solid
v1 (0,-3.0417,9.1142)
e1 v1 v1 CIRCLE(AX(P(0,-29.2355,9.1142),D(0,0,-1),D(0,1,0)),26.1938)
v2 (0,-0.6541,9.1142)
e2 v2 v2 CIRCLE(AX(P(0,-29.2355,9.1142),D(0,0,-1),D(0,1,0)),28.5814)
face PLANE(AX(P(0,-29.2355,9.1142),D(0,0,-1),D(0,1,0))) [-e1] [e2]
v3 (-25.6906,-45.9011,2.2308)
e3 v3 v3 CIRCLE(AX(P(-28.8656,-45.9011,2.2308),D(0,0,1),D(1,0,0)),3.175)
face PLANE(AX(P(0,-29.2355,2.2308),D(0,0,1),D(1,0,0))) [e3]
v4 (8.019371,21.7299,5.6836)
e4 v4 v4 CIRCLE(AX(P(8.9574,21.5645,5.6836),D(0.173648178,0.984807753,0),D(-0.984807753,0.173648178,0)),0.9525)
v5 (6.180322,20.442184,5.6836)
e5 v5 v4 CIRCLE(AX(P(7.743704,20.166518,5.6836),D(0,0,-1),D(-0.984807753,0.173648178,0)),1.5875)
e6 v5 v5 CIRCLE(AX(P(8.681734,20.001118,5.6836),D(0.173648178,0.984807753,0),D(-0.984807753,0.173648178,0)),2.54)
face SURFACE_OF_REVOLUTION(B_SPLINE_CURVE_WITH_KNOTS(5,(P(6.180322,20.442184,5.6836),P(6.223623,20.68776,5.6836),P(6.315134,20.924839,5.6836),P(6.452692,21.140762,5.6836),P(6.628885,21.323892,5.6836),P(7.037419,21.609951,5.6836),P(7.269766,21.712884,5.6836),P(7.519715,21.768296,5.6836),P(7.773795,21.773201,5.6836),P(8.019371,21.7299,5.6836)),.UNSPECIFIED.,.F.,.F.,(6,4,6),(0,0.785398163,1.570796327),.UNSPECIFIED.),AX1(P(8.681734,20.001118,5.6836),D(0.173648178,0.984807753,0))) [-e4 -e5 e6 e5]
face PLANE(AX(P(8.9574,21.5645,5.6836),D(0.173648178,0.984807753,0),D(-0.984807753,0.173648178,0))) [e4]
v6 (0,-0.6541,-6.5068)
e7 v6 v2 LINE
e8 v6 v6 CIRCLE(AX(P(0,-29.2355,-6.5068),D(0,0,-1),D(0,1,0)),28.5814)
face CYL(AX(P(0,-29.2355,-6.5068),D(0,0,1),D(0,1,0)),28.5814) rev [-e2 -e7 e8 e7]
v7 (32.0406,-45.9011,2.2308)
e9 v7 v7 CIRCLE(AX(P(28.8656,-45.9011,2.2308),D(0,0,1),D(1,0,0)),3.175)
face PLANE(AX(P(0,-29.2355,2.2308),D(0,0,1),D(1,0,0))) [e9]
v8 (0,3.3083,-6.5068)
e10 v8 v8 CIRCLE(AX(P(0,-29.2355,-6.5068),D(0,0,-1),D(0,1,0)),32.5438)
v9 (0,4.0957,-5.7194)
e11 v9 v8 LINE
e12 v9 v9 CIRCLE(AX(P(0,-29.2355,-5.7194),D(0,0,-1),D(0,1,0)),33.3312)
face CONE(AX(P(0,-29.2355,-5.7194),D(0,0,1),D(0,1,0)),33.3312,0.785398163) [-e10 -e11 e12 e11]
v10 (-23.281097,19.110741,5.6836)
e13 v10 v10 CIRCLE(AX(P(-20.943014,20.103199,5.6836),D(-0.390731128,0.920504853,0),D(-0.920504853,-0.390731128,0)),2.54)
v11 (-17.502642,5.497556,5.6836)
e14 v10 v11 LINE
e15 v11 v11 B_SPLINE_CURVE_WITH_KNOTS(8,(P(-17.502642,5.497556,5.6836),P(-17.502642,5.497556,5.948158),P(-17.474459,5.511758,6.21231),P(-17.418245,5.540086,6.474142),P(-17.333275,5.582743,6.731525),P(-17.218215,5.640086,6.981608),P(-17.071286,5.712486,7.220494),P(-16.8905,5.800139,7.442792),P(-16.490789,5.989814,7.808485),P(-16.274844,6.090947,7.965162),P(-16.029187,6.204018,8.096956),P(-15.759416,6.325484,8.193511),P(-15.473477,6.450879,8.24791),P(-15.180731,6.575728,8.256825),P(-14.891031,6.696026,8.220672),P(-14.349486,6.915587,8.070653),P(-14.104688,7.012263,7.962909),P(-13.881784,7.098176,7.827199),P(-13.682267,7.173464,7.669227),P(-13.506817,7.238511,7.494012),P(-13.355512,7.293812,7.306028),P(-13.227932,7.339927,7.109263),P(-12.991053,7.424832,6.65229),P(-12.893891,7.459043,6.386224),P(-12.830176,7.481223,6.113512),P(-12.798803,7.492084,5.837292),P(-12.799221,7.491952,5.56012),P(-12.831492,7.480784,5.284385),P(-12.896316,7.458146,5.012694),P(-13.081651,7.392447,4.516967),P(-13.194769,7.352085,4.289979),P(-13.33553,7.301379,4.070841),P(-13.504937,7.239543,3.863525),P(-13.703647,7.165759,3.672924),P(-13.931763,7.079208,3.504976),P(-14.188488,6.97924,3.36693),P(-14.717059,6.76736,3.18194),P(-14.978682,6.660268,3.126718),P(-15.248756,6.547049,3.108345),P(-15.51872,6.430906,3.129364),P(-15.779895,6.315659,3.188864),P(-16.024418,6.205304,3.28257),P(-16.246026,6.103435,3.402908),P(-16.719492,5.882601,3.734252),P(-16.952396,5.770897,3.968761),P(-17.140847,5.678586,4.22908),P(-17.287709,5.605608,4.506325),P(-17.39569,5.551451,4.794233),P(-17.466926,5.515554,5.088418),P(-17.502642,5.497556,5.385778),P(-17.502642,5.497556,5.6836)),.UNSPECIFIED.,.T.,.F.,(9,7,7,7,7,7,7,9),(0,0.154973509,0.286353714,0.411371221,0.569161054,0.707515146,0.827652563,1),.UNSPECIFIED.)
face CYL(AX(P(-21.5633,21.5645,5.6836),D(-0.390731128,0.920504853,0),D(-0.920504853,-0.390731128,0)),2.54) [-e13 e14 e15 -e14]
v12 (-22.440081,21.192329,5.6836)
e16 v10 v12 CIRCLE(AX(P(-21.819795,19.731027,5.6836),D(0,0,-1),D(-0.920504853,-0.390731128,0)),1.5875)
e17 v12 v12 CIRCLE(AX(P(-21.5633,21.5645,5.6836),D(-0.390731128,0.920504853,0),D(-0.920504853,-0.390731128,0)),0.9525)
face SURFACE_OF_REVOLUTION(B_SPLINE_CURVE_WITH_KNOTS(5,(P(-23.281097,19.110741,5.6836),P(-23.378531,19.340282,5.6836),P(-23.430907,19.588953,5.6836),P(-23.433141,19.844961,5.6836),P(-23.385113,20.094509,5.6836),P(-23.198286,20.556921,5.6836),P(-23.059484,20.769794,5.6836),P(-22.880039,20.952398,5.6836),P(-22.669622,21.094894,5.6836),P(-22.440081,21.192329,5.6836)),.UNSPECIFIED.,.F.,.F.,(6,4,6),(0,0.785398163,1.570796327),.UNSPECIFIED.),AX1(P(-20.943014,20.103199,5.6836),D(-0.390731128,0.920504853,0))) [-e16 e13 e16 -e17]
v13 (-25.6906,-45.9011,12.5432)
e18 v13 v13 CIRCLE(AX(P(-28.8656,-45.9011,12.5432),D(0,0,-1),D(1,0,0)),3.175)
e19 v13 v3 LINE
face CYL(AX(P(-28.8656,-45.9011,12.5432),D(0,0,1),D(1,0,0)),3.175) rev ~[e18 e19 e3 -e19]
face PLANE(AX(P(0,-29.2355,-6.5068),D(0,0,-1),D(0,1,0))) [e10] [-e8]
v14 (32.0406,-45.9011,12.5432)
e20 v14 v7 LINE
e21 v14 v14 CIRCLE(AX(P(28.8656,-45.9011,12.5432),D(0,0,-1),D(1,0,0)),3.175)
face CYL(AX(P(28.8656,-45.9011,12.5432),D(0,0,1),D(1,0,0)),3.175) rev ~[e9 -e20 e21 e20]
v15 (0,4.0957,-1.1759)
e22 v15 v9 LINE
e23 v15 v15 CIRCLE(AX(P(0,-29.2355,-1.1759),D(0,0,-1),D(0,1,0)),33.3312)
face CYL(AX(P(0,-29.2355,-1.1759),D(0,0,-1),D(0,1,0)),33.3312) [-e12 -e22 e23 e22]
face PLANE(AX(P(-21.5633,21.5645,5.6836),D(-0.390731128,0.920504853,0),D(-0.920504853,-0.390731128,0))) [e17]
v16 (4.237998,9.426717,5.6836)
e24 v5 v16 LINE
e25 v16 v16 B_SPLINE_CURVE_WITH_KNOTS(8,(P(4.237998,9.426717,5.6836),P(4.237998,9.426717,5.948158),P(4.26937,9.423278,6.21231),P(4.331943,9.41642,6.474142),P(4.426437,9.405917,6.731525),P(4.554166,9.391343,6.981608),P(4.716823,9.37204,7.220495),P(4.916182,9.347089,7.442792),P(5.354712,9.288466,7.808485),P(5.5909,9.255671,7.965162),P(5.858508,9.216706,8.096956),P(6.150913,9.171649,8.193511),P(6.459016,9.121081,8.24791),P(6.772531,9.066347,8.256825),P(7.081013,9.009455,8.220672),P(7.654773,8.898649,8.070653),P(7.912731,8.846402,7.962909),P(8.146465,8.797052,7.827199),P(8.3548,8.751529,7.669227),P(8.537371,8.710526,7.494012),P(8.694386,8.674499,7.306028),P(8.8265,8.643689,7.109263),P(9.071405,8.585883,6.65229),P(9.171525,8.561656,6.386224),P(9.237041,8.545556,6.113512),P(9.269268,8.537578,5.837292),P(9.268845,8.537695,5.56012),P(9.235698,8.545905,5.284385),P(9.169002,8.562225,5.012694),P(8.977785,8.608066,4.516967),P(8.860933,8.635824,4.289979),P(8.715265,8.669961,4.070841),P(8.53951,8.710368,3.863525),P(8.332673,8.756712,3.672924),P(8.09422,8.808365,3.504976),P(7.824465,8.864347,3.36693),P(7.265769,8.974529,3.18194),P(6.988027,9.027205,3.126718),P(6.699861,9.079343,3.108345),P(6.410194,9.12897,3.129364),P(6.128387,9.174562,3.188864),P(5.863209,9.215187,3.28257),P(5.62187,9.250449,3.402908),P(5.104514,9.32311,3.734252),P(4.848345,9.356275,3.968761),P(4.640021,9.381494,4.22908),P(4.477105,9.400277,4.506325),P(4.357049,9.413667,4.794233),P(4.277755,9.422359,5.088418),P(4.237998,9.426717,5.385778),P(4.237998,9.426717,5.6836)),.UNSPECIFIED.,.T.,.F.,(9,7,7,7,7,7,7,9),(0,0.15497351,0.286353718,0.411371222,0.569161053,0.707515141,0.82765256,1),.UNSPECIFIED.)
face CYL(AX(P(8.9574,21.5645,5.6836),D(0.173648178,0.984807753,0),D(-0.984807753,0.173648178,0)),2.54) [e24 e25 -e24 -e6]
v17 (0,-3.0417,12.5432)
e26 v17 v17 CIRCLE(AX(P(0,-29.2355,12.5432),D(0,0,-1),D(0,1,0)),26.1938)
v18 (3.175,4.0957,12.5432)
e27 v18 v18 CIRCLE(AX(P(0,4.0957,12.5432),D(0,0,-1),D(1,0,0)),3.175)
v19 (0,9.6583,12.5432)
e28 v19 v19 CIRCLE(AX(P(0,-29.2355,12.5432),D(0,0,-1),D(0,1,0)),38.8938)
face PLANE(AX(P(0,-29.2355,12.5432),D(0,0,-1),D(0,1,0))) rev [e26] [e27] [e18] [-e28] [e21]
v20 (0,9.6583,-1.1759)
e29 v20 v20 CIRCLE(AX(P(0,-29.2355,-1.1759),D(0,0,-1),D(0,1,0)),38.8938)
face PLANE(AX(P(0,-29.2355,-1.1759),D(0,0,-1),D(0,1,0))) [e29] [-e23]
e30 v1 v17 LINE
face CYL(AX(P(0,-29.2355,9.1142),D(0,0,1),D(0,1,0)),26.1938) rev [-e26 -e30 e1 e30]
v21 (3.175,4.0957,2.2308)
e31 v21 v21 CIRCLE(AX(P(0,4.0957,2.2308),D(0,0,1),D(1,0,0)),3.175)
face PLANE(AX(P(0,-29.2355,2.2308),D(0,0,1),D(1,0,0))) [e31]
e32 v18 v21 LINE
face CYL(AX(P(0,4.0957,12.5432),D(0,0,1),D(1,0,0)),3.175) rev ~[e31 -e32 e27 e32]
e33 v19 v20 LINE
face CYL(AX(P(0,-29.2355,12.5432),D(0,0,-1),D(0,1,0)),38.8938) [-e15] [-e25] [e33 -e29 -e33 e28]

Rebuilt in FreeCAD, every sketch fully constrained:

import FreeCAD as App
import Part
import Sketcher

V = App.Vector
Q = App.Units.Quantity


def edges_at(feature, points):
    """Names of the edges that pass closest to the given points."""
    edges = feature.Shape.Edges
    near = lambda p: min(range(len(edges)), key=lambda i: edges[i].distToShape(Part.Vertex(*p))[0])
    return sorted({f"Edge{near(p) + 1}" for p in points})


def add_polygon(sketch, points):
    """Adds a closed chain of lines whose ends are joined by coincident constraints."""
    first, n = sketch.GeometryCount, len(points)
    for a, b in zip(points, points[1:] + points[:1]):
        sketch.addGeometry(Part.LineSegment(App.Vector(*a, 0), App.Vector(*b, 0)), False)
    for i in range(n):
        sketch.addConstraint(Sketcher.Constraint("Coincident", first + i, 2, first + (i + 1) % n, 1))

doc = App.newDocument("Part")
body = doc.addObject("PartDesign::Body", "Body")

# Sketch on YZ plane
sketch1 = body.newObject("Sketcher::SketchObject", "Sketch")
sketch1.AttachmentSupport = (doc.getObject("YZ_Plane"), [""])
sketch1.MapMode = "FlatFace"
add_polygon(sketch1, [(9.7, -1.2), (9.7, 12.5), (-3, 12.5), (-3, 9.1), (-0.7, 9.1), (-0.7, -6.5), (4.1, -6.5), (4.1, -1.2)])  # lines 0-7
sketch1.addGeometry(Part.LineSegment(V(-29.2, 12.5, 0), V(-29.2, -6.5, 0)), True)  # axis
sketch1.addConstraint(Sketcher.Constraint("Vertical", 0))
sketch1.addConstraint(Sketcher.Constraint("Horizontal", 1))
sketch1.addConstraint(Sketcher.Constraint("Vertical", 2))
sketch1.addConstraint(Sketcher.Constraint("Horizontal", 3))
sketch1.addConstraint(Sketcher.Constraint("Vertical", 4))
sketch1.addConstraint(Sketcher.Constraint("Horizontal", 5))
sketch1.addConstraint(Sketcher.Constraint("Vertical", 6))
sketch1.addConstraint(Sketcher.Constraint("Horizontal", 7))
sketch1.addConstraint(Sketcher.Constraint("Vertical", 8))
sketch1.addConstraint(Sketcher.Constraint("Horizontal", 1, 2, 8, 1))
sketch1.addConstraint(Sketcher.Constraint("Horizontal", 5, 2, 8, 2))
sketch1.addConstraint(Sketcher.Constraint("DistanceX", 1, 2, 1, 1, Q("0.5 in")))
sketch1.addConstraint(Sketcher.Constraint("DistanceY", 8, 2, 8, 1, Q("0.75 in")))
sketch1.addConstraint(Sketcher.Constraint("DistanceX", 7, 1, 7, 2, Q("0.219 in")))
sketch1.addConstraint(Sketcher.Constraint("DistanceY", 2, 2, 2, 1, Q("0.135 in")))
sketch1.addConstraint(Sketcher.Constraint("DistanceX", 3, 2, 0, 2, Q("0.406 in")))
sketch1.addConstraint(Sketcher.Constraint("DistanceX", 8, 1, -1, 1, Q("1.151 in")))
sketch1.addConstraint(Sketcher.Constraint("DistanceX", 8, 1, 1, 2, Q("1.031252 in")))
sketch1.addConstraint(Sketcher.Constraint("DistanceY", 0, 1, 0, 2, 13.719))
sketch1.addConstraint(Sketcher.Constraint("DistanceY", 6, 2, -1, 1, Q("0.0463 in")))
revolution = body.newObject("PartDesign::Revolution", "Revolution")
revolution.Profile = sketch1
revolution.ReferenceAxis = (sketch1, ["Axis0"])
revolution.Angle = 360
doc.recompute()

chamfer = body.newObject("PartDesign::Chamfer", "Chamfer")
chamfer.Base = (revolution, edges_at(revolution, [(0, -62.567, -6.507)]))
chamfer.Size = Q("0.031 in")

# Sketch on XY plane
sketch2 = body.newObject("Sketcher::SketchObject", "Sketch001")
sketch2.AttachmentSupport = (doc.getObject("XY_Plane"), [""])
sketch2.MapMode = "FlatFace"
sketch2.AttachmentOffset = App.Placement(V(0, 0, 12.5432), App.Rotation())
sketch2.addGeometry(Part.Circle(V(0, 4.1, 0), V(0, 0, 1), 3.2), False)
sketch2.addGeometry(Part.Circle(V(28.9, -45.9, 0), V(0, 0, 1), 3.2), False)
sketch2.addGeometry(Part.Circle(V(-28.9, -45.9, 0), V(0, 0, 1), 3.2), False)
sketch2.addConstraint(Sketcher.Constraint("Equal", 0, 1))
sketch2.addConstraint(Sketcher.Constraint("Equal", 1, 2))
sketch2.addConstraint(Sketcher.Constraint("Symmetric", 1, 3, 2, 3, -2))
sketch2.addConstraint(Sketcher.Constraint("PointOnObject", 0, 3, -2))
sketch2.addConstraint(Sketcher.Constraint("Diameter", 0, Q("0.25 in")))
sketch2.addConstraint(Sketcher.Constraint("DistanceY", -1, 1, 0, 3, 4.0957))
sketch2.addConstraint(Sketcher.Constraint("DistanceX", -1, 1, 1, 3, 28.8656))
sketch2.addConstraint(Sketcher.Constraint("DistanceY", 1, 3, -1, 1, 45.901))
pocket1 = body.newObject("PartDesign::Pocket", "Pocket")
pocket1.Profile = sketch2
pocket1.Length = Q("0.406 in")

# Sketch on an angled plane
sketch3 = body.newObject("Sketcher::SketchObject", "Sketch002")
sketch3.Placement = App.Placement(V(8.9574, 21.5645, 5.6836), App.Rotation(V(-0.984807753, 0.173648178, 0), V(0, 0, 1), V(0.173648178, 0.984807753, 0), "ZXY"))
sketch3.addGeometry(Part.Circle(V(0, 0, 0), V(0, 0, 1), 2.5), False)
sketch3.addConstraint(Sketcher.Constraint("Coincident", 0, 3, -1, 1))
sketch3.addConstraint(Sketcher.Constraint("Diameter", 0, Q("0.2 in")))
pad1 = body.newObject("PartDesign::Pad", "Pad")
pad1.Profile = sketch3
pad1.Length = Q("0.8125 in")
pad1.Reversed = True

# Sketch on an angled plane
sketch4 = body.newObject("Sketcher::SketchObject", "Sketch003")
sketch4.Placement = App.Placement(V(-21.5633, 21.5645, 5.6836), App.Rotation(V(-0.920504853, -0.390731128, 0), V(0, 0, 0.999999999), V(-0.390731128, 0.920504853, 0), "ZXY"))
sketch4.addGeometry(Part.Circle(V(0, 0, 0), V(0, 0, 1), 2.5), False)
sketch4.addConstraint(Sketcher.Constraint("Coincident", 0, 3, -1, 1))
sketch4.addConstraint(Sketcher.Constraint("Diameter", 0, Q("0.2 in")))
pad2 = body.newObject("PartDesign::Pad", "Pad001")
pad2.Profile = sketch4
pad2.Length = Q("0.8125 in")
pad2.Reversed = True
doc.recompute()

fillet = body.newObject("PartDesign::Fillet", "Fillet")
fillet.Base = (pad2, edges_at(pad2, [(11.459, 21.123, 5.684)]))
fillet.Radius = Q("0.0625 in")
doc.recompute()

fillet2 = body.newObject("PartDesign::Fillet", "Fillet001")
fillet2.Base = (fillet, edges_at(fillet, [(-19.225, 22.557, 5.684)]))
fillet2.Radius = Q("0.0625 in")

doc.recompute()
